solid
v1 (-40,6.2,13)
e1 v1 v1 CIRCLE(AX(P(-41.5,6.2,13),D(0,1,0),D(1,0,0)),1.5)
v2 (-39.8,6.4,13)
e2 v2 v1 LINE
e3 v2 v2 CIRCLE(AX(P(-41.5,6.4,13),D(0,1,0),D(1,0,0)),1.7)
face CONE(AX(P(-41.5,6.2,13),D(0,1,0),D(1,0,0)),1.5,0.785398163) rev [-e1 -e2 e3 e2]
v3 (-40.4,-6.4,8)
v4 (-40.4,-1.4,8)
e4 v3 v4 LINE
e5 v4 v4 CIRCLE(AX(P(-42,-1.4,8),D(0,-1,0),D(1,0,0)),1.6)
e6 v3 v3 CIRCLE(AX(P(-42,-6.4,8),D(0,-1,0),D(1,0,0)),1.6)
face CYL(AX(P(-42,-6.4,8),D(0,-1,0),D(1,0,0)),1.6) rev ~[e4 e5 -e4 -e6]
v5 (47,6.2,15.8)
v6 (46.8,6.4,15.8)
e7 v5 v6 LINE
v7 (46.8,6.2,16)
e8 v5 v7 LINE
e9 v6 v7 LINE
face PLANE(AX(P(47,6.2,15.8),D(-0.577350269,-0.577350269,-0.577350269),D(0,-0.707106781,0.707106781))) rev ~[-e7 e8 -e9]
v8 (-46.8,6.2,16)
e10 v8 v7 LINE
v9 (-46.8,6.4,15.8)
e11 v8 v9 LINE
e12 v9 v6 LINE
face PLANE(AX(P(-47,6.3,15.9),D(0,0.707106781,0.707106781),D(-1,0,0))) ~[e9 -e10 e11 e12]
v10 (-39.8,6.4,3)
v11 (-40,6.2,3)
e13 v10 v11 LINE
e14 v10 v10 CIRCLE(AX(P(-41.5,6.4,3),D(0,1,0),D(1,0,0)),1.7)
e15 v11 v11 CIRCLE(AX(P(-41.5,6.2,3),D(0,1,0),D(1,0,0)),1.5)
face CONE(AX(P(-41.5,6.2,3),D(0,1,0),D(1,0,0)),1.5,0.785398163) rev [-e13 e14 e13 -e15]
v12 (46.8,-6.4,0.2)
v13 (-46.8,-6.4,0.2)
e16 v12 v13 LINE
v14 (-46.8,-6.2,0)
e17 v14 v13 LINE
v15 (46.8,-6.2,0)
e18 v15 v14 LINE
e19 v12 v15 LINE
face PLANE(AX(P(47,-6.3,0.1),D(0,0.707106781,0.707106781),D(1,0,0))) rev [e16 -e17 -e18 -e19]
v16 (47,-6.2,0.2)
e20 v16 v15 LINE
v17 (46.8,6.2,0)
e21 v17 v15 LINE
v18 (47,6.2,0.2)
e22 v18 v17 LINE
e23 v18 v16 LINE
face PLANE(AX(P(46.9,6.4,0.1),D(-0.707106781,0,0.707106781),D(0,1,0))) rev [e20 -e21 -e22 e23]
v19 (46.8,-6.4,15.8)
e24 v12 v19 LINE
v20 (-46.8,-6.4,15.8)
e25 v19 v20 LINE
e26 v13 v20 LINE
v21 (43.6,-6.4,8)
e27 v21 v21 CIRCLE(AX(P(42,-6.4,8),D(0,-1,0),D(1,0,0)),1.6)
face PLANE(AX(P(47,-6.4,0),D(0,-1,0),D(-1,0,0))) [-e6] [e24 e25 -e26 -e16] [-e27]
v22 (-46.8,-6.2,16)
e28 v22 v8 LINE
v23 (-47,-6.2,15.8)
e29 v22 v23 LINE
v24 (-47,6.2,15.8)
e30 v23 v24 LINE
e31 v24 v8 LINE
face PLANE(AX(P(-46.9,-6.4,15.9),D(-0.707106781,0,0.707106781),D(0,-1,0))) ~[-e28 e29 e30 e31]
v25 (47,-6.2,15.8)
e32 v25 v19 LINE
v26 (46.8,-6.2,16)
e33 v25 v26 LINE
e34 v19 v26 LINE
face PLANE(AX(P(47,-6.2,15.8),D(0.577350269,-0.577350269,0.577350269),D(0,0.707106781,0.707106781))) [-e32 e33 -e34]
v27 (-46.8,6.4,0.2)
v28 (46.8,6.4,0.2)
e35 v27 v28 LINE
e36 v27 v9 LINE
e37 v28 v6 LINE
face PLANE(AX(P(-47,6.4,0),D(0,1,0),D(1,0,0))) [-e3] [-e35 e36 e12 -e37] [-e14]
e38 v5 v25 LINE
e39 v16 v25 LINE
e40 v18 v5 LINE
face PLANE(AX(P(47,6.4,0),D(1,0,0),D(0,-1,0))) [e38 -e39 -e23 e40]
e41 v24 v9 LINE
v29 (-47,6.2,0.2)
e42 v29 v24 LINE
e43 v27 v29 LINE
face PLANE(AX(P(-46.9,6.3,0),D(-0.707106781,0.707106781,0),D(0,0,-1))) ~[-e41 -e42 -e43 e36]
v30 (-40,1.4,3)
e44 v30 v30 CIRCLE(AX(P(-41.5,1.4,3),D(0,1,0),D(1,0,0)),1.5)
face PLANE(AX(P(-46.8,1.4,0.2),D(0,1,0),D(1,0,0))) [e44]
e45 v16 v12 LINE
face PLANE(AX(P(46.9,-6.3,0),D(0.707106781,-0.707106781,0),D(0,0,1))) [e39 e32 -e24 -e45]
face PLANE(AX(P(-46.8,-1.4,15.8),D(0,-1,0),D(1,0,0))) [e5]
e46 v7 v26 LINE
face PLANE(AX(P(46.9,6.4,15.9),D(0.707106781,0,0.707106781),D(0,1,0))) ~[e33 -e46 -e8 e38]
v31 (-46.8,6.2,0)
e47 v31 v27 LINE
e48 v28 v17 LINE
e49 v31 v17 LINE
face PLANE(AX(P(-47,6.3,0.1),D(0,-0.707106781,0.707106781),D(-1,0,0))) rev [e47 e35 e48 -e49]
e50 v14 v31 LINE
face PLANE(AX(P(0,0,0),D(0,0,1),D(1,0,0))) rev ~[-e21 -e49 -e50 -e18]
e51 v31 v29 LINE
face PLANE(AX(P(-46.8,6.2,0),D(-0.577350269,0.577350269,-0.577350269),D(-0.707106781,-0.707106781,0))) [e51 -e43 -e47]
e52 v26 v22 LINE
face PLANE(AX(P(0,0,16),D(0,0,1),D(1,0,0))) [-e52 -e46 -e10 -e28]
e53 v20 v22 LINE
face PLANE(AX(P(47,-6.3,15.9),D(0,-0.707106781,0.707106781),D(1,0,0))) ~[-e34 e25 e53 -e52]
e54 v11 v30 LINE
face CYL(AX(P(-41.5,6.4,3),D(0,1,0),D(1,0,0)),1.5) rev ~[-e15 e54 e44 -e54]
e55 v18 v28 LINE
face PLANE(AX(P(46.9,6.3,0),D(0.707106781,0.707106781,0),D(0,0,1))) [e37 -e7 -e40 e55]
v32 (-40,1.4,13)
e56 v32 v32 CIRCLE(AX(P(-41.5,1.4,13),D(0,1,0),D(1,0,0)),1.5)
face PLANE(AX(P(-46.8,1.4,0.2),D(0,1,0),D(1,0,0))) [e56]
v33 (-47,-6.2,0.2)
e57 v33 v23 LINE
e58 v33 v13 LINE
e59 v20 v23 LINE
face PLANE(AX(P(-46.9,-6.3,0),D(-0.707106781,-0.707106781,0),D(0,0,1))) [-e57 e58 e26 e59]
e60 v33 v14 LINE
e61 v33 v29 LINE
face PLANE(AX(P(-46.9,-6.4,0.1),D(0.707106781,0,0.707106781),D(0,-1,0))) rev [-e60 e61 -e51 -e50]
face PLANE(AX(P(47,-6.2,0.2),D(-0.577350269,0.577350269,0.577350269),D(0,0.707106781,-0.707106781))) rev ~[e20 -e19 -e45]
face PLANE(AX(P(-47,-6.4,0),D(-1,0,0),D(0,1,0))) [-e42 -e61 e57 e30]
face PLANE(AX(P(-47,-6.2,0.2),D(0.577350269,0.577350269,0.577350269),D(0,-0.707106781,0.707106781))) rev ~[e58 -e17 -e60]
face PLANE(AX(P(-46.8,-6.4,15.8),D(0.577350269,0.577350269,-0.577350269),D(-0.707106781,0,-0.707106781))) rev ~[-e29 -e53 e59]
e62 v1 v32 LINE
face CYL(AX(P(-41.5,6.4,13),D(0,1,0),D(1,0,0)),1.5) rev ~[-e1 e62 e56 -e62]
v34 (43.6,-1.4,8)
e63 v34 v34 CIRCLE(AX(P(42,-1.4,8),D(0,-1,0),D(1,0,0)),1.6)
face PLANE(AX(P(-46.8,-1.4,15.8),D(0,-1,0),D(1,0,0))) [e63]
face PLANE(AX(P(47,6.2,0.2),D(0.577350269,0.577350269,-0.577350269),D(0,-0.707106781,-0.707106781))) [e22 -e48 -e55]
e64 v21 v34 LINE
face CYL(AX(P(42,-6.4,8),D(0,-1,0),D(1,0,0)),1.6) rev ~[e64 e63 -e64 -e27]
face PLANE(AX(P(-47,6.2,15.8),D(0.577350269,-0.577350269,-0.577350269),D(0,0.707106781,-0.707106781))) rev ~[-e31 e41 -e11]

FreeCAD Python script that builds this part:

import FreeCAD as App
import Part
import Sketcher

V = App.Vector


def edges_at(feature, points):
    """Names of the edges that pass closest to the given points."""
    edges = feature.Shape.Edges
    near = lambda p: min(range(len(edges)), key=lambda i: edges[i].distToShape(Part.Vertex(*p))[0])
    return sorted({f"Edge{near(p) + 1}" for p in points})


def add_polygon(sketch, points):
    """Adds a closed chain of lines whose ends are joined by coincident constraints."""
    first, n = sketch.GeometryCount, len(points)
    for a, b in zip(points, points[1:] + points[:1]):
        sketch.addGeometry(Part.LineSegment(App.Vector(*a, 0), App.Vector(*b, 0)), False)
    for i in range(n):
        sketch.addConstraint(Sketcher.Constraint("Coincident", first + i, 2, first + (i + 1) % n, 1))

doc = App.newDocument("Part")
body = doc.addObject("PartDesign::Body", "Body")

sketch1 = body.newObject("Sketcher::SketchObject", "Sketch")
sketch1.AttachmentSupport = (doc.getObject("XY_Plane"), [""])
sketch1.MapMode = "FlatFace"
add_polygon(sketch1, [(47, 6.4), (-47, 6.4), (-47, -6.4), (47, -6.4)])
sketch1.addConstraint(Sketcher.Constraint("Horizontal", 0))
sketch1.addConstraint(Sketcher.Constraint("Vertical", 1))
sketch1.addConstraint(Sketcher.Constraint("Horizontal", 2))
sketch1.addConstraint(Sketcher.Constraint("Vertical", 3))
sketch1.addConstraint(Sketcher.Constraint("Symmetric", 0, 2, 2, 2, -1, 1))
sketch1.addConstraint(Sketcher.Constraint("DistanceX", 0, 2, 0, 1, 94.0))
sketch1.addConstraint(Sketcher.Constraint("DistanceY", 1, 2, 1, 1, 12.8))
pad1 = body.newObject("PartDesign::Pad", "Pad")
pad1.Profile = sketch1
pad1.Length = 16
doc.recompute()

chamfer = body.newObject("PartDesign::Chamfer", "Chamfer")
chamfer.Base = (pad1, ["Edge1"])
chamfer.UseAllEdges = True
chamfer.Size = 0.2

sketch2 = body.newObject("Sketcher::SketchObject", "Sketch001")
sketch2.AttachmentSupport = (doc.getObject("XZ_Plane"), [""])
sketch2.MapMode = "FlatFace"
sketch2.AttachmentOffset = App.Placement(V(0, 0, -6.4), App.Rotation())
sketch2.addGeometry(Part.Circle(V(-41.5, 3, 0), V(0, 0, 1), 1.5), False)
sketch2.addGeometry(Part.Circle(V(-41.5, 13, 0), V(0, 0, 1), 1.5), False)
sketch2.addConstraint(Sketcher.Constraint("Equal", 0, 1))
sketch2.addConstraint(Sketcher.Constraint("Vertical", 0, 3, 1, 3))
sketch2.addConstraint(Sketcher.Constraint("Diameter", 0, 3.0))
sketch2.addConstraint(Sketcher.Constraint("DistanceY", -1, 1, 0, 3, 3.0))
sketch2.addConstraint(Sketcher.Constraint("DistanceY", 0, 3, 1, 3, 10.0))
sketch2.addConstraint(Sketcher.Constraint("DistanceX", 0, 3, -1, 1, 41.5))
pocket1 = body.newObject("PartDesign::Pocket", "Pocket")
pocket1.Profile = sketch2
pocket1.Length = 5
pocket1.Reversed = True
doc.recompute()

chamfer2 = body.newObject("PartDesign::Chamfer", "Chamfer001")
chamfer2.Base = (pocket1, edges_at(pocket1, [(-43, 6.4, 13), (-43, 6.4, 3)]))
chamfer2.Size = 0.2

sketch3 = body.newObject("Sketcher::SketchObject", "Sketch002")
sketch3.AttachmentSupport = (doc.getObject("XZ_Plane"), [""])
sketch3.MapMode = "FlatFace"
sketch3.AttachmentOffset = App.Placement(V(0, 0, 6.4), App.Rotation())
sketch3.addGeometry(Part.Circle(V(-42, 8, 0), V(0, 0, 1), 1.6), False)
sketch3.addGeometry(Part.Circle(V(42, 8, 0), V(0, 0, 1), 1.6), False)
sketch3.addConstraint(Sketcher.Constraint("Equal", 0, 1))
sketch3.addConstraint(Sketcher.Constraint("Symmetric", 0, 3, 1, 3, -2))
sketch3.addConstraint(Sketcher.Constraint("Diameter", 0, 3.2))
sketch3.addConstraint(Sketcher.Constraint("DistanceX", 0, 3, -1, 1, 42.0))
sketch3.addConstraint(Sketcher.Constraint("DistanceY", -1, 1, 0, 3, 8.0))
pocket2 = body.newObject("PartDesign::Pocket", "Pocket001")
pocket2.Profile = sketch3
pocket2.Length = 5

doc.recompute()
